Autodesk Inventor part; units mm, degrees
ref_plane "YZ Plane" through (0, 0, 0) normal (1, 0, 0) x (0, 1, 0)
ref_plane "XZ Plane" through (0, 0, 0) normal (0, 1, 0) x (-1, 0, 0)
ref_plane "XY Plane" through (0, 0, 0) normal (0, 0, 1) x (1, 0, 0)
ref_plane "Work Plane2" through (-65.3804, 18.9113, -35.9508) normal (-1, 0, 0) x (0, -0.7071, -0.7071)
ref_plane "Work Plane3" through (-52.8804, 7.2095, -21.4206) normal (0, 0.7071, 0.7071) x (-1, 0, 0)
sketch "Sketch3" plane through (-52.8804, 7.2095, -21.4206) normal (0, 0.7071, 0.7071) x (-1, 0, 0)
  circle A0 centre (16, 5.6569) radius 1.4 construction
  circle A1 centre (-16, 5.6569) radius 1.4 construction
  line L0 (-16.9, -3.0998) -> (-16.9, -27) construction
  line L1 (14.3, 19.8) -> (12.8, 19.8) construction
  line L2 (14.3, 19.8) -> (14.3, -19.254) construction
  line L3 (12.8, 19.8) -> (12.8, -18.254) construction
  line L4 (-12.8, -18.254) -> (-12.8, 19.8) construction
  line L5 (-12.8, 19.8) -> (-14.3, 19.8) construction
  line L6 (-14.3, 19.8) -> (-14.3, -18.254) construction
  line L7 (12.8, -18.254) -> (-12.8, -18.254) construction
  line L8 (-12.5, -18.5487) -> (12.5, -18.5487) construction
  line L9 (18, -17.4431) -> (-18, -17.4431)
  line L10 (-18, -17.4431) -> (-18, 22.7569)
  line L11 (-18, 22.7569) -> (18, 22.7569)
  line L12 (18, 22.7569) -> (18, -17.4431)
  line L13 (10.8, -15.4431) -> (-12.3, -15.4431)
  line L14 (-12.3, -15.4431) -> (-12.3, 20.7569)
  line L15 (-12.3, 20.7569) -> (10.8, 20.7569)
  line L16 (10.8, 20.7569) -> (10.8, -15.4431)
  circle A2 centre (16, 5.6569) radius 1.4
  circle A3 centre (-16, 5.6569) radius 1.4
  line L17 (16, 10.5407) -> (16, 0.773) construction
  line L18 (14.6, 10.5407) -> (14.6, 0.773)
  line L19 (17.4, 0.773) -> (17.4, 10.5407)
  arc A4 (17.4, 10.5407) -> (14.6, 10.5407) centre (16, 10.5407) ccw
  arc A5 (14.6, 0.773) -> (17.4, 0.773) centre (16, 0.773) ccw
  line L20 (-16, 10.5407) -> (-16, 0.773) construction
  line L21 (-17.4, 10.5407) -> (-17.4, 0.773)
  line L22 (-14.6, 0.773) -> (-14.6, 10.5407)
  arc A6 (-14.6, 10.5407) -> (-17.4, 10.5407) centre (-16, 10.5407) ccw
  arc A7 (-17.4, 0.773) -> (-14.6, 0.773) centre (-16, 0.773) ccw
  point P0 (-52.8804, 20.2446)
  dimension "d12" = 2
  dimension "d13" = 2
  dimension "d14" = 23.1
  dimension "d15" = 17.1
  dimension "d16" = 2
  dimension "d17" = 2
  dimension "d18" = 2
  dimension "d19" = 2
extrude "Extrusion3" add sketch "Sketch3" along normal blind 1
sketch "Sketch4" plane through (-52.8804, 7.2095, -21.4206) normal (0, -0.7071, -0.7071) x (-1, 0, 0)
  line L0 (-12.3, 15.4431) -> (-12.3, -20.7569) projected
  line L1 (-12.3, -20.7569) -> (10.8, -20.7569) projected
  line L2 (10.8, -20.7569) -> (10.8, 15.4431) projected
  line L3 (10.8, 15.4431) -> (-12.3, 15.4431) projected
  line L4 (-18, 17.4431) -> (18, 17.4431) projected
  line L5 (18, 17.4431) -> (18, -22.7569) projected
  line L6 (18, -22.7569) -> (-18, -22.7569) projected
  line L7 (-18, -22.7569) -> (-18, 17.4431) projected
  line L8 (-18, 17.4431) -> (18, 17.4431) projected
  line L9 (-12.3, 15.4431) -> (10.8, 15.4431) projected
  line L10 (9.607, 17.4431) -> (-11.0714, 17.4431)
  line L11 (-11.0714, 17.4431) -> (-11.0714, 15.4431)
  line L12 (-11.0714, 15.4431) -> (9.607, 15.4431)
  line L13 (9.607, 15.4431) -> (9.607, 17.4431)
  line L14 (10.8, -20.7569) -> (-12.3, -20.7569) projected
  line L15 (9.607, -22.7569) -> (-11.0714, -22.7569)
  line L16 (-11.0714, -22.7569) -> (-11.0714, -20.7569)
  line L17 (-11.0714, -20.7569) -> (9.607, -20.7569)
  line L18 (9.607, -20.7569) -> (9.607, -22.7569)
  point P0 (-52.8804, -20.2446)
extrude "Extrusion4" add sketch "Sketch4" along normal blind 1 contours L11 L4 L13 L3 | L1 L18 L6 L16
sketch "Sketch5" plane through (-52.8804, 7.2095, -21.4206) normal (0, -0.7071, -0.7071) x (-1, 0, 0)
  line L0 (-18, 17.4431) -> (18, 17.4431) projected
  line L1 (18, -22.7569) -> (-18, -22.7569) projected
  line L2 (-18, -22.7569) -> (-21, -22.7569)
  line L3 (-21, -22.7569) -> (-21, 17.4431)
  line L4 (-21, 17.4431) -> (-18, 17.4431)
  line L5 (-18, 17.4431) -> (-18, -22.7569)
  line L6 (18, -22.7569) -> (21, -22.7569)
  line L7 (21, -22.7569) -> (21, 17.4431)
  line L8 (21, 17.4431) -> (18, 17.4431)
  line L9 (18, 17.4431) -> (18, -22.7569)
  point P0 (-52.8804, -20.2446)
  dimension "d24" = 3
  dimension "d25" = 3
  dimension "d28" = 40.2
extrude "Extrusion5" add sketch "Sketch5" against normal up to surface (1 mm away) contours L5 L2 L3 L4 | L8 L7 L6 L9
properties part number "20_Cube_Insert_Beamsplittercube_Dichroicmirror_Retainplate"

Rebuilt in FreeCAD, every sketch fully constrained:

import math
import FreeCAD as App
import Part
import Sketcher


def add_polygon(sketch, points):
    """Adds a closed chain of lines whose ends are joined by coincident constraints."""
    first, n = sketch.GeometryCount, len(points)
    for a, b in zip(points, points[1:] + points[:1]):
        sketch.addGeometry(Part.LineSegment(App.Vector(*a, 0), App.Vector(*b, 0)), False)
    for i in range(n):
        sketch.addConstraint(Sketcher.Constraint("Coincident", first + i, 2, first + (i + 1) % n, 1))

doc = App.newDocument("Part")
params = doc.addObject("Spreadsheet::Sheet", "Params")
for row, (alias, value) in enumerate([
    ("sketch1_width", "23.1 mm"),
    ("sketch1_radius", "1.4 mm"),
    ("sketch1_width2", "36 mm"),
    ("sketch1_height", "40.2 mm"),
    ("pad1_length", "1 mm"),
    ("sketch2_height", "2 mm"),
    ("pad2_length", "1 mm"),
    ("sketch3_width", "3 mm"),
    ("sketch3_height", "40.2 mm"),
    ("pad3_length", "1 mm"),
], start=1):
    params.set(f"A{row}", alias)
    params.set(f"B{row}", "=" + value)
    params.setAlias(f"B{row}", alias)

body = doc.addObject("PartDesign::Body", "Body")

sketch1 = doc.addObject("Sketcher::SketchObject", "Sketch")
body.addObject(sketch1)
sketch1.Placement = App.Placement(App.Vector(-52.8804, 7.2095, -21.4206), App.Rotation(App.Vector(-1, 0, 0), App.Vector(0, -0.707106781, 0.707106781), App.Vector(0, 0.707106781, 0.707106781), "ZXY"))
add_polygon(sketch1, [(-18, -17.4), (18, -17.4), (18, 22.8), (-18, 22.8)])
sketch1.addGeometry(Part.LineSegment(App.Vector(-14.6, 10.5, 0), App.Vector(-14.6, 0.8, 0)), False)
sketch1.addGeometry(Part.ArcOfCircle(Part.Circle(App.Vector(-16, 0.8, 0), App.Vector(0, 0, 1), 1.4), math.radians(180), math.radians(360)), False)
sketch1.addGeometry(Part.LineSegment(App.Vector(-17.4, 0.8, 0), App.Vector(-17.4, 10.5, 0)), False)
sketch1.addGeometry(Part.ArcOfCircle(Part.Circle(App.Vector(-16, 10.5, 0), App.Vector(0, 0, 1), 1.4), math.radians(0), math.radians(180)), False)
add_polygon(sketch1, [(10.8, 20.8), (10.8, -15.4), (-12.3, -15.4), (-12.3, 20.8)])
sketch1.addGeometry(Part.LineSegment(App.Vector(17.4, 10.5, 0), App.Vector(17.4, 0.8, 0)), False)
sketch1.addGeometry(Part.ArcOfCircle(Part.Circle(App.Vector(16, 0.8, 0), App.Vector(0, 0, 1), 1.4), math.radians(180), math.radians(360)), False)
sketch1.addGeometry(Part.LineSegment(App.Vector(14.6, 0.8, 0), App.Vector(14.6, 10.5, 0)), False)
sketch1.addGeometry(Part.ArcOfCircle(Part.Circle(App.Vector(16, 10.5, 0), App.Vector(0, 0, 1), 1.4), math.radians(0), math.radians(180)), False)
sketch1.addConstraint([
    Sketcher.Constraint("Tangent", 4, 2, 5, 2),
    Sketcher.Constraint("Tangent", 5, 1, 6, 1),
    Sketcher.Constraint("Tangent", 6, 2, 7, 2),
    Sketcher.Constraint("Tangent", 7, 1, 4, 1),
    Sketcher.Constraint("Tangent", 12, 2, 13, 2),
    Sketcher.Constraint("Tangent", 13, 1, 14, 1),
    Sketcher.Constraint("Tangent", 14, 2, 15, 2),
    Sketcher.Constraint("Tangent", 15, 1, 12, 1),
    Sketcher.Constraint("Horizontal", 0),
    Sketcher.Constraint("Vertical", 1),
    Sketcher.Constraint("Horizontal", 2),
    Sketcher.Constraint("Vertical", 3),
    Sketcher.Constraint("Vertical", 4),
    Sketcher.Constraint("Vertical", 6),
    Sketcher.Constraint("Vertical", 8),
    Sketcher.Constraint("Horizontal", 9),
    Sketcher.Constraint("Vertical", 10),
    Sketcher.Constraint("Horizontal", 11),
    Sketcher.Constraint("Vertical", 12),
    Sketcher.Constraint("Vertical", 14),
    Sketcher.Constraint("Equal", 7, 13),
    Sketcher.Constraint("Symmetric", 5, 3, 13, 3, -2),
    Sketcher.Constraint("Horizontal", 7, 3, 15, 3),
    Sketcher.Constraint("DistanceX", 9, 2, 9, 1, 23.1),
    Sketcher.Constraint("DistanceX", 13, 3, 0, 2, 2.0),
    Sketcher.Constraint("DistanceX", 2, 2, 7, 3, 2.0),
    Sketcher.Constraint("DistanceY", 0, 2, 8, 2, 2.0),
    Sketcher.Constraint("DistanceY", 10, 2, 2, 2, 2.0),
    Sketcher.Constraint("Radius", 5, 1.4),
    Sketcher.Constraint("DistanceX", 0, 1, 0, 2, 36.0),
    Sketcher.Constraint("DistanceY", 1, 1, 1, 2, 40.2),
    Sketcher.Constraint("DistanceX", -1, 1, 8, 2, 10.8),
    Sketcher.Constraint("DistanceY", 4, 2, 4, 1, 9.7677),
    Sketcher.Constraint("DistanceY", -1, 1, 5, 3, 0.773),
    Sketcher.Constraint("DistanceY", 0, 2, -1, 1, 17.443),
])
sketch1.setExpression("Constraints[31]", "Params.sketch1_width")
sketch1.setExpression("Constraints[36]", "Params.sketch1_radius")
sketch1.setExpression("Constraints[37]", "Params.sketch1_width2")
sketch1.setExpression("Constraints[38]", "Params.sketch1_height")
pad1 = doc.addObject("PartDesign::Pad", "Pad")
body.addObject(pad1)
pad1.Profile = sketch1
pad1.setExpression("Length", "Params.pad1_length")

sketch2 = doc.addObject("Sketcher::SketchObject", "Sketch001")
body.addObject(sketch2)
sketch2.Placement = App.Placement(App.Vector(-52.8804, 7.2095, -21.4206), App.Rotation(App.Vector(-1, 0, 0), App.Vector(0, 0.707106781, -0.707106781), App.Vector(0, -0.707106781, -0.707106781), "ZXY"))
add_polygon(sketch2, [(-11.1, 17.4), (-11.1, 15.4), (9.6, 15.4), (9.6, 17.4)])
add_polygon(sketch2, [(9.6, -20.8), (-11.1, -20.8), (-11.1, -22.8), (9.6, -22.8)])
sketch2.addConstraint([
    Sketcher.Constraint("Vertical", 0),
    Sketcher.Constraint("Horizontal", 1),
    Sketcher.Constraint("Vertical", 2),
    Sketcher.Constraint("Horizontal", 3),
    Sketcher.Constraint("Horizontal", 4),
    Sketcher.Constraint("Vertical", 5),
    Sketcher.Constraint("Horizontal", 6),
    Sketcher.Constraint("Vertical", 7),
    Sketcher.Constraint("Vertical", 3, 2, 4, 2),
    Sketcher.Constraint("Vertical", 2, 2, 6, 2),
    Sketcher.Constraint("Equal", 2, 5),
    Sketcher.Constraint("DistanceY", 0, 2, 0, 1, 2.0),
    Sketcher.Constraint("DistanceY", 4, 2, 0, 2, 36.2),
    Sketcher.Constraint("DistanceX", 1, 1, 1, 2, 20.6784),
    Sketcher.Constraint("DistanceY", -1, 1, 0, 2, 15.443),
    Sketcher.Constraint("DistanceX", -1, 1, 1, 2, 9.607),
])
sketch2.setExpression("Constraints[19]", "Params.sketch2_height")
pad2 = doc.addObject("PartDesign::Pad", "Pad001")
body.addObject(pad2)
pad2.Profile = sketch2
pad2.setExpression("Length", "Params.pad2_length")

sketch3 = doc.addObject("Sketcher::SketchObject", "Sketch002")
body.addObject(sketch3)
sketch3.Placement = App.Placement(App.Vector(-52.8804, 7.2095, -21.4206), App.Rotation(App.Vector(-1, 0, 0), App.Vector(0, 0.707106781, -0.707106781), App.Vector(0, -0.707106781, -0.707106781), "ZXY"))
add_polygon(sketch3, [(-18, -22.8), (-18, 17.4), (-21, 17.4), (-21, -22.8)])
add_polygon(sketch3, [(21, 17.4), (18, 17.4), (18, -22.8), (21, -22.8)])
sketch3.addConstraint([
    Sketcher.Constraint("Vertical", 0),
    Sketcher.Constraint("Horizontal", 1),
    Sketcher.Constraint("Vertical", 2),
    Sketcher.Constraint("Horizontal", 3),
    Sketcher.Constraint("Horizontal", 4),
    Sketcher.Constraint("Vertical", 5),
    Sketcher.Constraint("Horizontal", 6),
    Sketcher.Constraint("Vertical", 7),
    Sketcher.Constraint("Symmetric", 0, 2, 4, 2, -2),
    Sketcher.Constraint("Symmetric", 2, 2, 6, 2, -2),
    Sketcher.Constraint("DistanceX", 1, 2, 1, 1, 3.0),
    Sketcher.Constraint("DistanceY", 0, 1, 0, 2, 40.2),
    Sketcher.Constraint("DistanceX", 0, 2, -1, 1, 18.0),
    Sketcher.Constraint("DistanceY", -1, 1, 0, 2, 17.443),
])
sketch3.setExpression("Constraints[18]", "Params.sketch3_width")
sketch3.setExpression("Constraints[19]", "Params.sketch3_height")
pad3 = doc.addObject("PartDesign::Pad", "Pad002")
body.addObject(pad3)
pad3.Profile = sketch3
pad3.setExpression("Length", "Params.pad3_length")
pad3.Reversed = True

doc.recompute()
